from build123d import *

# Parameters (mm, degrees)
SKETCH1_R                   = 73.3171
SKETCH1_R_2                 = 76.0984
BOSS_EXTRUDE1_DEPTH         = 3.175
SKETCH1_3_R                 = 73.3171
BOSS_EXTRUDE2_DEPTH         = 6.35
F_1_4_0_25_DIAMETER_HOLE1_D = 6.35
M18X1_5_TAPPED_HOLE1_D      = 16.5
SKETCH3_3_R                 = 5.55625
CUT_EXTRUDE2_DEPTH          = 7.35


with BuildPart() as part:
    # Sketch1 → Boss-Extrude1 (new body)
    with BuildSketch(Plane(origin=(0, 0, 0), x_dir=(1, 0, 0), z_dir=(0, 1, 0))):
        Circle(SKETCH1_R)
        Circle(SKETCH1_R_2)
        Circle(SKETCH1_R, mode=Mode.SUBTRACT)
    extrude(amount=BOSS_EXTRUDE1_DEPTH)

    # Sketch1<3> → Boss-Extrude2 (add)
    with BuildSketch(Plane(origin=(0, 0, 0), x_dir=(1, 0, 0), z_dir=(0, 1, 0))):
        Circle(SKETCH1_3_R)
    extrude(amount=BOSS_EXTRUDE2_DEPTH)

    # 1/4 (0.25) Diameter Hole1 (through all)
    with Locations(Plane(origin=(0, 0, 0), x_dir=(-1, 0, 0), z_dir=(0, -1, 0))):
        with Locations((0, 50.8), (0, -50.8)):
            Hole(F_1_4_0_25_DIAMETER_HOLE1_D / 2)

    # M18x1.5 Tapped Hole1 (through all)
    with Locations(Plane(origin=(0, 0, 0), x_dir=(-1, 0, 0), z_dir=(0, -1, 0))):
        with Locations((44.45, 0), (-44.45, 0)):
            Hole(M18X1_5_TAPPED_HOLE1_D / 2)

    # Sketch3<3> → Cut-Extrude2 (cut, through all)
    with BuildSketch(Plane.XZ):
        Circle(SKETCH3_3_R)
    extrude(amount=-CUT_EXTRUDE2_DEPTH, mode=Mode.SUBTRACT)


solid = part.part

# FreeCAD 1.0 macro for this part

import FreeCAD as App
import Part
import Sketcher
Q = App.Units.Quantity

doc = App.newDocument("Part")
body = doc.addObject("PartDesign::Body", "Body")

sketch1 = doc.addObject("Sketcher::SketchObject", "Sketch")
body.addObject(sketch1)
sketch1.AttachmentSupport = (doc.XZ_Plane, [""])
sketch1.MapMode = "FlatFace"
sketch1.addGeometry(Part.Circle(App.Vector(0, 0, 0), App.Vector(0, 0, 1), 76), False)
sketch1.addGeometry(Part.Circle(App.Vector(0, 0, 0), App.Vector(0, 0, 1), 73), False)
sketch1.addConstraint(Sketcher.Constraint("Coincident", 0, 3, -1, 1))
sketch1.addConstraint(Sketcher.Constraint("Coincident", 1, 3, -1, 1))
sketch1.addConstraint(Sketcher.Constraint("Diameter", 0, Q("5.992 in")))
sketch1.addConstraint(Sketcher.Constraint("Diameter", 1, Q("5.773 in")))
pad1 = doc.addObject("PartDesign::Pad", "Pad")
body.addObject(pad1)
pad1.Profile = sketch1
pad1.Length = Q("0.125 in")
pad1.Reversed = True

sketch2 = doc.addObject("Sketcher::SketchObject", "Sketch001")
body.addObject(sketch2)
sketch2.AttachmentSupport = (doc.XZ_Plane, [""])
sketch2.MapMode = "FlatFace"
sketch2.addGeometry(Part.Circle(App.Vector(0, 0, 0), App.Vector(0, 0, 1), 73), False)
sketch2.addConstraint(Sketcher.Constraint("Coincident", 0, 3, -1, 1))
sketch2.addConstraint(Sketcher.Constraint("Diameter", 0, Q("5.773 in")))
pad2 = doc.addObject("PartDesign::Pad", "Pad001")
body.addObject(pad2)
pad2.Profile = sketch2
pad2.Length = Q("0.25 in")
pad2.Reversed = True

sketch3 = doc.addObject("Sketcher::SketchObject", "Sketch002")
body.addObject(sketch3)
sketch3.AttachmentSupport = (doc.XZ_Plane, [""])
sketch3.MapMode = "FlatFace"
sketch3.addGeometry(Part.Circle(App.Vector(0, -50.8, 0), App.Vector(0, 0, 1), 3.2), False)
sketch3.addGeometry(Part.Circle(App.Vector(0, 50.8, 0), App.Vector(0, 0, 1), 3.2), False)
sketch3.addConstraint(Sketcher.Constraint("Equal", 0, 1))
sketch3.addConstraint(Sketcher.Constraint("Symmetric", 0, 3, 1, 3, -1, 1))
sketch3.addConstraint(Sketcher.Constraint("PointOnObject", 0, 3, -2))
sketch3.addConstraint(Sketcher.Constraint("Diameter", 0, Q("0.25 in")))
sketch3.addConstraint(Sketcher.Constraint("DistanceY", 0, 3, -1, 1, Q("2 in")))
doc.recompute()
hole = doc.addObject("PartDesign::Hole", "Hole")
body.addObject(hole)
hole.Profile = sketch3
hole.ThreadType = "None"
hole.Diameter = Q("0.25 in")
hole.DepthType = "ThroughAll"

sketch4 = doc.addObject("Sketcher::SketchObject", "Sketch003")
body.addObject(sketch4)
sketch4.AttachmentSupport = (doc.XZ_Plane, [""])
sketch4.MapMode = "FlatFace"
sketch4.addGeometry(Part.Circle(App.Vector(-44, 0, 0), App.Vector(0, 0, 1), 8), False)
sketch4.addGeometry(Part.Circle(App.Vector(44, 0, 0), App.Vector(0, 0, 1), 8), False)
sketch4.addConstraint(Sketcher.Constraint("Equal", 0, 1))
sketch4.addConstraint(Sketcher.Constraint("Symmetric", 0, 3, 1, 3, -1, 1))
sketch4.addConstraint(Sketcher.Constraint("PointOnObject", 0, 3, -1))
sketch4.addConstraint(Sketcher.Constraint("DistanceX", 0, 3, 1, 3, Q("3.5 in")))
sketch4.addConstraint(Sketcher.Constraint("Diameter", 0, 16.5))
doc.recompute()
hole2 = doc.addObject("PartDesign::Hole", "Hole001")
body.addObject(hole2)
hole2.Profile = sketch4
hole2.ThreadType = "None"
hole2.Diameter = 16.5
hole2.DepthType = "ThroughAll"

sketch5 = doc.addObject("Sketcher::SketchObject", "Sketch004")
body.addObject(sketch5)
sketch5.AttachmentSupport = (doc.XZ_Plane, [""])
sketch5.MapMode = "FlatFace"
sketch5.addGeometry(Part.Circle(App.Vector(0, 0, 0), App.Vector(0, 0, 1), 6), False)
sketch5.addConstraint(Sketcher.Constraint("Coincident", 0, 3, -1, 1))
sketch5.addConstraint(Sketcher.Constraint("Diameter", 0, Q("0.4375 in")))
pocket1 = doc.addObject("PartDesign::Pocket", "Pocket")
body.addObject(pocket1)
pocket1.Profile = sketch5
pocket1.Type = "ThroughAll"

doc.recompute()
